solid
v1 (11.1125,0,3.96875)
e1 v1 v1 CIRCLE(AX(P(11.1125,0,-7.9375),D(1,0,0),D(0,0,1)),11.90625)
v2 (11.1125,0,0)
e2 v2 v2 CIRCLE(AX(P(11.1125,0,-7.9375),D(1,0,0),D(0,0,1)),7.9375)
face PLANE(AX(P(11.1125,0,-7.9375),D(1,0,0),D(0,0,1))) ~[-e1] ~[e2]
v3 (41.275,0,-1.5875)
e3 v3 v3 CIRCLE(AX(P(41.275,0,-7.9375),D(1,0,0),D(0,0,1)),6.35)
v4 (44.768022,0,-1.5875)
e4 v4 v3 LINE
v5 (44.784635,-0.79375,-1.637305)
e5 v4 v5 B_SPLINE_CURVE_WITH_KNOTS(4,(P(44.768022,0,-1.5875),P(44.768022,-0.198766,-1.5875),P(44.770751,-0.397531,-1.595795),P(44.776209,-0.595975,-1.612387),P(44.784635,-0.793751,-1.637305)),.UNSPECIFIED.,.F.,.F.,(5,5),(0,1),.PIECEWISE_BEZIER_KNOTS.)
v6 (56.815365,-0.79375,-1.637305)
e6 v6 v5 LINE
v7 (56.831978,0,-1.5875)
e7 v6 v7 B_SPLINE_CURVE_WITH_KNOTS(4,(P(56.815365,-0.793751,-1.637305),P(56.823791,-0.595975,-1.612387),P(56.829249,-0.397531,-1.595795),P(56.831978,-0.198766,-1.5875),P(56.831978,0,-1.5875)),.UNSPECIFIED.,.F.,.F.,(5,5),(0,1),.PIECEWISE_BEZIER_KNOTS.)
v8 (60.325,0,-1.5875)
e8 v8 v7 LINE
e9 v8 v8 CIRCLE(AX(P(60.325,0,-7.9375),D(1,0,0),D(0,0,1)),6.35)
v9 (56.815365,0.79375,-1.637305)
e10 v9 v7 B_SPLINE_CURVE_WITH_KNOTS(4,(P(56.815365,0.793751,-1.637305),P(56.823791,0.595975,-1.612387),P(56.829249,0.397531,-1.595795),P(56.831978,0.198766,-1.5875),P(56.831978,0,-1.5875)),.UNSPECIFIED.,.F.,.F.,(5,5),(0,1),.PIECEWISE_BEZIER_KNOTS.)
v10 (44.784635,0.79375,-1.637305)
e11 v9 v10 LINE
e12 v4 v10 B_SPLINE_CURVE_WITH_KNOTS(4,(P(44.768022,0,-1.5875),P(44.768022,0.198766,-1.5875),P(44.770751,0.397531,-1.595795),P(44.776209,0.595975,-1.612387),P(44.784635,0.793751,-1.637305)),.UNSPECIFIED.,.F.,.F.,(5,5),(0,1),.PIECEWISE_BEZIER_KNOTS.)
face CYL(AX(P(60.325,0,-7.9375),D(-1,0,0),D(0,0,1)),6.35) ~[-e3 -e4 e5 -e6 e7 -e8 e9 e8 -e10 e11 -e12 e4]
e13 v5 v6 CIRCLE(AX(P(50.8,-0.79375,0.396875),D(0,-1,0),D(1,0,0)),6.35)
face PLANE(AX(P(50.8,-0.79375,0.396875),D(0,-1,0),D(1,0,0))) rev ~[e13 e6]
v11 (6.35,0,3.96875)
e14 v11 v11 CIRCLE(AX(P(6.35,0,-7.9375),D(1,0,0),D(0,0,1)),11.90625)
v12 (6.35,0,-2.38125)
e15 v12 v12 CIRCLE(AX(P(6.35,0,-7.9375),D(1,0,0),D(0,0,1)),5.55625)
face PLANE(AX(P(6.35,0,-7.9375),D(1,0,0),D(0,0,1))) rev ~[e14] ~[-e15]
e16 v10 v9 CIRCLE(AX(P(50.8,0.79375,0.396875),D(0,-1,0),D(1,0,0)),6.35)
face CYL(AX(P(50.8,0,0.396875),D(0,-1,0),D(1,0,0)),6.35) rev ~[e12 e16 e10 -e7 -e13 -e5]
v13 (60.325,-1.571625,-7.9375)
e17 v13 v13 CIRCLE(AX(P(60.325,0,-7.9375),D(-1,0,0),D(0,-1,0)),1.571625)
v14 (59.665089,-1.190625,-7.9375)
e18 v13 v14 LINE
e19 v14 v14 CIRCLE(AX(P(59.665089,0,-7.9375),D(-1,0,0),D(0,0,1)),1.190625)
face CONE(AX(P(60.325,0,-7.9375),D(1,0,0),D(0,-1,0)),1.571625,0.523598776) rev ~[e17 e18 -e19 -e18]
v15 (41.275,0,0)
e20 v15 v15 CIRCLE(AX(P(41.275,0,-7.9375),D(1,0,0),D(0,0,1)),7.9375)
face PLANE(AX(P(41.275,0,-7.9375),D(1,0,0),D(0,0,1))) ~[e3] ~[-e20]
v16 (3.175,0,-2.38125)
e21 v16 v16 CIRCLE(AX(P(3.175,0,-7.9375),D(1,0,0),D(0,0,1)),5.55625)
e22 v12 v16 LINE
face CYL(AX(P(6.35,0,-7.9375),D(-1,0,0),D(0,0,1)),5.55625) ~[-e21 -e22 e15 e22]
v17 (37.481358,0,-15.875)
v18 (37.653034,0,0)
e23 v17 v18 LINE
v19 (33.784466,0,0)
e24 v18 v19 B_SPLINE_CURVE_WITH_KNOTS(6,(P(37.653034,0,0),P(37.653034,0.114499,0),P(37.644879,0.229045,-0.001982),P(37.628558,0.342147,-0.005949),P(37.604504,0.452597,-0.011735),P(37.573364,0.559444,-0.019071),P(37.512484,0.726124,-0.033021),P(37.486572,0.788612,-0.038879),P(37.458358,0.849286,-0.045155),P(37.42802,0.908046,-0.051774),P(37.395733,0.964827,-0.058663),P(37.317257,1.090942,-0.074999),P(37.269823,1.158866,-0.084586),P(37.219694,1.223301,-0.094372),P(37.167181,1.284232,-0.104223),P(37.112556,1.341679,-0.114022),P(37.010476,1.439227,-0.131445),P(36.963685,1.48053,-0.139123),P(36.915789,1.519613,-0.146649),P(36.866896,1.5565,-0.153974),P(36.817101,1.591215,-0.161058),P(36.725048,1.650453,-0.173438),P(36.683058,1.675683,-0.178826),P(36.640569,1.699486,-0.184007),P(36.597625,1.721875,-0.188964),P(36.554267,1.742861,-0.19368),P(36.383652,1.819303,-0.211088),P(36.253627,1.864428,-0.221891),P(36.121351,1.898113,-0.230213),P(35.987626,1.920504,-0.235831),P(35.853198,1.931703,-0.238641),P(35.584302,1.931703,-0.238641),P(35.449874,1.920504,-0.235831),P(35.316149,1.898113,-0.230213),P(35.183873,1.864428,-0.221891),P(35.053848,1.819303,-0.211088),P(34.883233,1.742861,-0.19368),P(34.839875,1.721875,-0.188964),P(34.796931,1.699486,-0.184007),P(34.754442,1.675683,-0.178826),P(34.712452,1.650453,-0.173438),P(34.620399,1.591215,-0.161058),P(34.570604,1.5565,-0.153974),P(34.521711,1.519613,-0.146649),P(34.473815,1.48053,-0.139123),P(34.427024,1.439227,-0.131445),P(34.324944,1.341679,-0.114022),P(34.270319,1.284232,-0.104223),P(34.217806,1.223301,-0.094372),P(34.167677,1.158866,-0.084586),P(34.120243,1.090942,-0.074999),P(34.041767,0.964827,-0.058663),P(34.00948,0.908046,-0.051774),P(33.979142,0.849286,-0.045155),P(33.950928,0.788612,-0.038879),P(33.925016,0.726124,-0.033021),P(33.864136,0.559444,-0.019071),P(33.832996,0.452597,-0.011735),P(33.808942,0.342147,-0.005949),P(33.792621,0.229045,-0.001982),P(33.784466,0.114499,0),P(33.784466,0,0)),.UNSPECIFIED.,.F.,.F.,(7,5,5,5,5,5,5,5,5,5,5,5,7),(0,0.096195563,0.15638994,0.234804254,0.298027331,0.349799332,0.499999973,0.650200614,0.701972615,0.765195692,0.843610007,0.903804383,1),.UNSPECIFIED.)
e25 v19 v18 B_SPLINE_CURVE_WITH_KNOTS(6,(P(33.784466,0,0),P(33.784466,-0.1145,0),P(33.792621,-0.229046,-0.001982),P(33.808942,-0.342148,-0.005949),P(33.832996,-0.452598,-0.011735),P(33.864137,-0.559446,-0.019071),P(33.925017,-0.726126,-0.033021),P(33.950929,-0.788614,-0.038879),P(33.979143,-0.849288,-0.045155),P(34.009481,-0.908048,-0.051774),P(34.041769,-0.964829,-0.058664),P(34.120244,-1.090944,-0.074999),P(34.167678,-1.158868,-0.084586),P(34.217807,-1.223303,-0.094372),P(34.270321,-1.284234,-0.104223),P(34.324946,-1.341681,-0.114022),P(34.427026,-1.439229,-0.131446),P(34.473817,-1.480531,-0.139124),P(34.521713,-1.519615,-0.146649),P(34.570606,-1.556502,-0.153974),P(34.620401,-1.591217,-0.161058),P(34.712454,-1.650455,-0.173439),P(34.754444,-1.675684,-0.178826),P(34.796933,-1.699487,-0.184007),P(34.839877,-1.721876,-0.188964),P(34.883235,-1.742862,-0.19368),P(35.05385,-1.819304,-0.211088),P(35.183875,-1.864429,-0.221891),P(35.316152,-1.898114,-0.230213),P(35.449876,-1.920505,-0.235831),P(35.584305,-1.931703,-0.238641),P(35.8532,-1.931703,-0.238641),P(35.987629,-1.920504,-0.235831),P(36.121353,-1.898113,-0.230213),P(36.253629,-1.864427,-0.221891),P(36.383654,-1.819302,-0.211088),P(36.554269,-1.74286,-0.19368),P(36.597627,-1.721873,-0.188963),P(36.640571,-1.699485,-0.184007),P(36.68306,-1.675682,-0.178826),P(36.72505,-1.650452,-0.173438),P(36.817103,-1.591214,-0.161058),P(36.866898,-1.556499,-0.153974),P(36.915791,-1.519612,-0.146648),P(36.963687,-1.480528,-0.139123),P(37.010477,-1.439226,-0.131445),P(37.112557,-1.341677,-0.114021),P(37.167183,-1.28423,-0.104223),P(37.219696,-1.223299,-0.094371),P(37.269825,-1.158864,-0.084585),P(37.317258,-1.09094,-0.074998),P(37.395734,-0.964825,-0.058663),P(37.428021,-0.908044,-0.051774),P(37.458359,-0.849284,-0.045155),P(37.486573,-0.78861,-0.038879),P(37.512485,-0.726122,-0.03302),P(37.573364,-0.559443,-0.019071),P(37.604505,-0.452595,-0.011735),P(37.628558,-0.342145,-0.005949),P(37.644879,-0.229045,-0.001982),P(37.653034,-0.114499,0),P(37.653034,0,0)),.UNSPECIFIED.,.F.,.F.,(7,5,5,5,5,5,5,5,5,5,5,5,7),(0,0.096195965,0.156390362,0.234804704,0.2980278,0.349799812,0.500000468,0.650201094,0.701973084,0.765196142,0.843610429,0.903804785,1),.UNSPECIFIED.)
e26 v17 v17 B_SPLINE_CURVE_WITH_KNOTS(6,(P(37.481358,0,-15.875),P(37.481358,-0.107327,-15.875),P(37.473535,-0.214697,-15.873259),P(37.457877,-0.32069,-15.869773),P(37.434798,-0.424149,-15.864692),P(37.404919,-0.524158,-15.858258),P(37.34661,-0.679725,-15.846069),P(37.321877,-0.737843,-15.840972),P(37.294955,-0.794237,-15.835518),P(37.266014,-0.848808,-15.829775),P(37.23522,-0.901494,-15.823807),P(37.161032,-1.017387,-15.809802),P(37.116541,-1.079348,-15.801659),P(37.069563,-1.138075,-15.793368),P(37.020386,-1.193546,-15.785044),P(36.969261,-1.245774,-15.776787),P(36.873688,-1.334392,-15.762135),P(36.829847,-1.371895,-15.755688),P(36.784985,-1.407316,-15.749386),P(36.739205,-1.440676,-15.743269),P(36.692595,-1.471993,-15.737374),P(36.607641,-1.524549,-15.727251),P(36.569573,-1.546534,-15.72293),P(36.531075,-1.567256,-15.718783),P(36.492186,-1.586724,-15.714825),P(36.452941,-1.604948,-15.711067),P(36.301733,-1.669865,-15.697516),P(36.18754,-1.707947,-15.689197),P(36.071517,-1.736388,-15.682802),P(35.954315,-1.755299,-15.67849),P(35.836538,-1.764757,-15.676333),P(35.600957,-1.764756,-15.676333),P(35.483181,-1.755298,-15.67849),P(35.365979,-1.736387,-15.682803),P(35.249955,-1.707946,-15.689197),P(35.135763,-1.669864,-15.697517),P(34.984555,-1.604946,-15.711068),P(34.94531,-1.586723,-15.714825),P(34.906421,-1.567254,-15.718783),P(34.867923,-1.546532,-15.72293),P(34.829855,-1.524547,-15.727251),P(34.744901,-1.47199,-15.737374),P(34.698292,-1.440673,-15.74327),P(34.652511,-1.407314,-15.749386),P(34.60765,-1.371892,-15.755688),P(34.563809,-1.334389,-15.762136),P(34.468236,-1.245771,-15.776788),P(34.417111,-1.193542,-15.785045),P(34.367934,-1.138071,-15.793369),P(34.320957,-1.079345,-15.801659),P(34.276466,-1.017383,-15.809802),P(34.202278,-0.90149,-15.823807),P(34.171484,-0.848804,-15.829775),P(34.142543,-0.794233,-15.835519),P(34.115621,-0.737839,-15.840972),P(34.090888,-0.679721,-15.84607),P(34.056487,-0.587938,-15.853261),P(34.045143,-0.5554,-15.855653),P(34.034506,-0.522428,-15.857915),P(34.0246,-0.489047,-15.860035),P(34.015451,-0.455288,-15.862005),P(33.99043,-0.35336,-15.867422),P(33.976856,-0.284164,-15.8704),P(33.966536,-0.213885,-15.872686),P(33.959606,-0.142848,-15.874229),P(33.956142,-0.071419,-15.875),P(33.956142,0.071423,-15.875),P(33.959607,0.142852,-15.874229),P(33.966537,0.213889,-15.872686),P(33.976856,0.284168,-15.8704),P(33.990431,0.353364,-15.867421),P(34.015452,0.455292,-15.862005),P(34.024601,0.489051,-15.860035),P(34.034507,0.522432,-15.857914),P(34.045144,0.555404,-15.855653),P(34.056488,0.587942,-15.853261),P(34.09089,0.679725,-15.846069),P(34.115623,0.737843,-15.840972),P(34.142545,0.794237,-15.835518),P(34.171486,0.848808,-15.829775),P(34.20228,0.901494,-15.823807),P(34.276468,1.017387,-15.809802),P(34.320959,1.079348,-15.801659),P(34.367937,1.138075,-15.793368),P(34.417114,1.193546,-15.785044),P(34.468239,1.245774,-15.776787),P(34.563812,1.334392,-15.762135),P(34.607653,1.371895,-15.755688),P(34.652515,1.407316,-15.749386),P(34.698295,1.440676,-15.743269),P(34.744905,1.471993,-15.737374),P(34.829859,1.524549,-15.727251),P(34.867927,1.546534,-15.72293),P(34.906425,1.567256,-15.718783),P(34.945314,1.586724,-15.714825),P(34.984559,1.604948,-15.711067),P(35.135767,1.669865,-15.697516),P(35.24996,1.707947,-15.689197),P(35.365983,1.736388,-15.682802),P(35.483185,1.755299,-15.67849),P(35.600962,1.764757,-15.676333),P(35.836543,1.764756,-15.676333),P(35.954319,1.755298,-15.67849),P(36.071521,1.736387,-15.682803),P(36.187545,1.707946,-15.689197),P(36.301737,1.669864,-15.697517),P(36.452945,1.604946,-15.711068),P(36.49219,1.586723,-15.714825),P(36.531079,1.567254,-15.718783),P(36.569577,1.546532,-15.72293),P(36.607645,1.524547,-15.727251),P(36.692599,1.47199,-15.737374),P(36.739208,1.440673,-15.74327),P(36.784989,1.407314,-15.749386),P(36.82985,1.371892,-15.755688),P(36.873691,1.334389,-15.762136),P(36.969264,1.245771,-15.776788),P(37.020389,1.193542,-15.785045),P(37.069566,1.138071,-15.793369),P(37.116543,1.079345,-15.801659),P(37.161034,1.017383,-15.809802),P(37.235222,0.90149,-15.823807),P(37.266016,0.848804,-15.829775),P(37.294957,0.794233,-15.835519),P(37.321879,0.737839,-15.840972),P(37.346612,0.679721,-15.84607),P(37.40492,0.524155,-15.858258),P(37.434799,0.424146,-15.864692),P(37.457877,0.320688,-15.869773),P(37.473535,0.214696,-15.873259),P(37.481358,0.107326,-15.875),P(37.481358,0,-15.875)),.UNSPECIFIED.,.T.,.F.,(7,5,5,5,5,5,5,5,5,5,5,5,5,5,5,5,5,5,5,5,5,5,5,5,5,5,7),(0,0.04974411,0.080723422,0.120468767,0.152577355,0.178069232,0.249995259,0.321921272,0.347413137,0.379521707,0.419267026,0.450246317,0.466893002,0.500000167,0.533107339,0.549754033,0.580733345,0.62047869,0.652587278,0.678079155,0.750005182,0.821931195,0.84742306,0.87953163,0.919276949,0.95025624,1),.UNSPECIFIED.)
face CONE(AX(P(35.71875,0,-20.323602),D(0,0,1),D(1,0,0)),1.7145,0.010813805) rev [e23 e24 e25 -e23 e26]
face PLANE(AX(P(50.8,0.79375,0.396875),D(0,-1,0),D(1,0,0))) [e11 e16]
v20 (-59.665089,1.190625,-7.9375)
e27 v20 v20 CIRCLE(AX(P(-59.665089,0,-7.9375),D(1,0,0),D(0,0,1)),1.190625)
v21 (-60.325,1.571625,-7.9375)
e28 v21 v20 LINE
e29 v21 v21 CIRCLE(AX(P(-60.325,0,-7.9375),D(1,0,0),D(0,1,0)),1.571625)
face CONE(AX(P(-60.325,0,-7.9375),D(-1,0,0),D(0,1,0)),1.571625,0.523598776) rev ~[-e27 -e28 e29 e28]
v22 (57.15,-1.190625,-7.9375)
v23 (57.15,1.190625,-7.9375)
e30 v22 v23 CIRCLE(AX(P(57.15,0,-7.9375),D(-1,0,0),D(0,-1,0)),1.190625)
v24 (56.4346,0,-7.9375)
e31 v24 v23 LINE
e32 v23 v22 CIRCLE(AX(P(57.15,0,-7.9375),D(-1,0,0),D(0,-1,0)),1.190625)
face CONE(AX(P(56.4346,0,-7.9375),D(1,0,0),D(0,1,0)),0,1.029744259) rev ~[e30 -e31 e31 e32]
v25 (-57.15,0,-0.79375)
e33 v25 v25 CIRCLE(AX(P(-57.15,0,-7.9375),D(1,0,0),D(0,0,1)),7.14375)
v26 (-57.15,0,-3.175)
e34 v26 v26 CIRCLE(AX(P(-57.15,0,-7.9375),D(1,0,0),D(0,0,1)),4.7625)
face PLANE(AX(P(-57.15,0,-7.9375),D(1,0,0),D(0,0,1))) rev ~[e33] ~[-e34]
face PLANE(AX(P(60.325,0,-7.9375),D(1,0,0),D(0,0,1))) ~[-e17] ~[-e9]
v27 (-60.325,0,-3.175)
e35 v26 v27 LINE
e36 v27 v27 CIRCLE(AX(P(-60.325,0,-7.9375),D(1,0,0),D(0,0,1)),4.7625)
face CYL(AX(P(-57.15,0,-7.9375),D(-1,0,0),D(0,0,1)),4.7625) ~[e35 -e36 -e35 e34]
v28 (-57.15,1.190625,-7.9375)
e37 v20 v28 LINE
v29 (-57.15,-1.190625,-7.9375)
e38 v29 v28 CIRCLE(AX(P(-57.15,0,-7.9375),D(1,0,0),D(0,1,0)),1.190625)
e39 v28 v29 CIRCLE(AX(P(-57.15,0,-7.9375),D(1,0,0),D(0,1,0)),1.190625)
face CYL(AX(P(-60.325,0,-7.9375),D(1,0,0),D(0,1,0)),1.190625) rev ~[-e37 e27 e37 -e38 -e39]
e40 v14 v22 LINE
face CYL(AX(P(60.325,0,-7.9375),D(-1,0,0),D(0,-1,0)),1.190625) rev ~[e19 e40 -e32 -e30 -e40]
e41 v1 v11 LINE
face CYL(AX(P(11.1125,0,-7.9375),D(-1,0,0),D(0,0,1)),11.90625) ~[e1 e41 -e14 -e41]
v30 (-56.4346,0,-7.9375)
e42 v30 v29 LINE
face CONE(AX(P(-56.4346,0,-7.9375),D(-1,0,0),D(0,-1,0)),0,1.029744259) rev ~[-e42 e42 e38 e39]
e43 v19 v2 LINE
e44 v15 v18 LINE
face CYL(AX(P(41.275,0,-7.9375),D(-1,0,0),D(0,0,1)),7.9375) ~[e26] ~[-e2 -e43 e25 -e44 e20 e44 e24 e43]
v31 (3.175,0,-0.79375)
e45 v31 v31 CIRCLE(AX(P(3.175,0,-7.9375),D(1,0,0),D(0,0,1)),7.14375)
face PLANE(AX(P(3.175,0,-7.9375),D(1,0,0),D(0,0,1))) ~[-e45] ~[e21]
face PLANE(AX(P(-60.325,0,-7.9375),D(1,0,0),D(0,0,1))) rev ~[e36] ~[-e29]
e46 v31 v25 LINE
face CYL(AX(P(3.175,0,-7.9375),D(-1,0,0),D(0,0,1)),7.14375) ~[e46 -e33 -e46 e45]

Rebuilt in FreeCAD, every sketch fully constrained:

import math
import FreeCAD as App
import Part
import Sketcher

V = App.Vector
Q = App.Units.Quantity

doc = App.newDocument("Part")
body = doc.addObject("PartDesign::Body", "Body")

sketch1 = body.newObject("Sketcher::SketchObject", "Sketch")
sketch1.AttachmentSupport = (doc.getObject("XZ_Plane"), [""])
sketch1.MapMode = "FlatFace"
sketch1.addGeometry([
    Part.LineSegment(V(-60.325, -3.175, 0), V(-60.325, -7.9375, 0)),
    Part.LineSegment(V(-60.325, -7.9375, 0), V(60.325, -7.9375, 0)),
    Part.LineSegment(V(60.325, -7.9375, 0), V(60.325, -1.5875, 0)),
    Part.LineSegment(V(60.325, -1.5875, 0), V(41.275, -1.5875, 0)),
    Part.LineSegment(V(41.275, -1.5875, 0), V(41.275, 0, 0)),
    Part.LineSegment(V(41.275, 0, 0), V(11.1125, 0, 0)),
    Part.LineSegment(V(11.1125, 0, 0), V(11.1125, 3.96875, 0)),
    Part.LineSegment(V(11.1125, 3.96875, 0), V(6.35, 3.96875, 0)),
    Part.LineSegment(V(6.35, 3.96875, 0), V(6.35, -2.38125, 0)),
    Part.LineSegment(V(6.35, -2.38125, 0), V(3.175, -2.38125, 0)),
    Part.LineSegment(V(3.175, -2.38125, 0), V(3.175, -0.79375, 0)),
    Part.LineSegment(V(3.175, -0.79375, 0), V(-57.15, -0.79375, 0)),
    Part.LineSegment(V(-57.15, -0.79375, 0), V(-57.15, -3.175, 0)),
    Part.LineSegment(V(-57.15, -3.175, 0), V(-60.325, -3.175, 0)),
], False)
sketch1.addGeometry(Part.LineSegment(V(-60.325, -7.9375, 0), V(60.325, -7.9375, 0)), True)
sketch1.addConstraint([
    Sketcher.Constraint("Coincident", 0, 2, 1, 1),
    Sketcher.Constraint("Coincident", 1, 2, 2, 1),
    Sketcher.Constraint("Coincident", 2, 2, 3, 1),
    Sketcher.Constraint("Coincident", 3, 2, 4, 1),
    Sketcher.Constraint("Coincident", 4, 2, 5, 1),
    Sketcher.Constraint("Coincident", 5, 2, 6, 1),
    Sketcher.Constraint("Coincident", 6, 2, 7, 1),
    Sketcher.Constraint("Coincident", 7, 2, 8, 1),
    Sketcher.Constraint("Coincident", 8, 2, 9, 1),
    Sketcher.Constraint("Coincident", 9, 2, 10, 1),
    Sketcher.Constraint("Coincident", 10, 2, 11, 1),
    Sketcher.Constraint("Coincident", 11, 2, 12, 1),
    Sketcher.Constraint("Coincident", 12, 2, 13, 1),
    Sketcher.Constraint("Coincident", 13, 2, 0, 1),
    Sketcher.Constraint("Vertical", 0),
    Sketcher.Constraint("Horizontal", 1),
    Sketcher.Constraint("Vertical", 2),
    Sketcher.Constraint("Horizontal", 3),
    Sketcher.Constraint("Vertical", 4),
    Sketcher.Constraint("Horizontal", 5),
    Sketcher.Constraint("Vertical", 6),
    Sketcher.Constraint("Horizontal", 7),
    Sketcher.Constraint("Vertical", 8),
    Sketcher.Constraint("Horizontal", 9),
    Sketcher.Constraint("Vertical", 10),
    Sketcher.Constraint("Horizontal", 11),
    Sketcher.Constraint("Vertical", 12),
    Sketcher.Constraint("Horizontal", 13),
    Sketcher.Constraint("Horizontal", 14),
    Sketcher.Constraint("Coincident", 14, 1, 0, 2),
    Sketcher.Constraint("PointOnObject", 4, 2, -1),
    Sketcher.Constraint("Vertical", 2, 2, 14, 2),
    Sketcher.Constraint("Equal", 9, 13),
    Sketcher.Constraint("Equal", 7, 0),
    Sketcher.Constraint("Equal", 2, 8),
    Sketcher.Constraint("Equal", 4, 10),
    Sketcher.Constraint("DistanceX", 0, 2, 3, 2, Q("4 in")),
    Sketcher.Constraint("DistanceX", 1, 1, 1, 2, Q("4.75 in")),
    Sketcher.Constraint("DistanceY", 2, 1, 2, 2, Q("0.25 in")),
    Sketcher.Constraint("DistanceX", 9, 2, 3, 2, Q("1.5 in")),
    Sketcher.Constraint("DistanceX", 5, 2, 5, 1, Q("1.1875 in")),
    Sketcher.Constraint("DistanceX", 7, 2, 7, 1, Q("0.1875 in")),
    Sketcher.Constraint("DistanceY", 4, 1, 4, 2, Q("0.0625 in")),
    Sketcher.Constraint("DistanceY", 6, 1, 6, 2, Q("0.15625 in")),
    Sketcher.Constraint("DistanceX", -1, 1, 7, 2, Q("0.25 in")),
])
revolution = body.newObject("PartDesign::Revolution", "Revolution")
revolution.Profile = sketch1
revolution.ReferenceAxis = (sketch1, ["Axis0"])
revolution.Angle = 360

sketch2 = body.newObject("Sketcher::SketchObject", "Sketch001")
sketch2.AttachmentSupport = (doc.getObject("XZ_Plane"), [""])
sketch2.MapMode = "FlatFace"
sketch2.addGeometry(Part.Circle(V(50.8, 0.396875, 0), V(0, 0, 1), 6.35), False)
sketch2.addConstraint([
    Sketcher.Constraint("Diameter", 0, Q("0.5 in")),
    Sketcher.Constraint("DistanceX", -1, 1, 0, 3, Q("2 in")),
    Sketcher.Constraint("DistanceY", -1, 1, 0, 3, Q("0.015625 in")),
])
pocket1 = body.newObject("PartDesign::Pocket", "Pocket")
pocket1.Profile = sketch2
pocket1.Length = Q("0.0625 in")
pocket1.Midplane = True

sketch3 = body.newObject("Sketcher::SketchObject", "Sketch002")
sketch3.AttachmentSupport = (doc.getObject("XZ_Plane"), [""])
sketch3.MapMode = "FlatFace"
sketch3.addGeometry([
    Part.LineSegment(V(37.43325, -20.323602, 0), V(37.69995, 4.338356, 0)),
    Part.ArcOfCircle(Part.Circle(V(35.71875, -0.076719, 0), V(0, 0, 1), 4.839219), math.radians(65.832542), math.radians(90)),
    Part.LineSegment(V(35.71875, 4.7625, 0), V(35.71875, -20.6375, 0)),
    Part.ArcOfCircle(Part.Circle(V(35.71875, -15.798281, 0), V(0, 0, 1), 4.839219), math.radians(-90), math.radians(-69.249897)),
], False)
sketch3.addGeometry(Part.LineSegment(V(35.71875, 4.7625, 0), V(35.71875, -20.6375, 0)), True)
sketch3.addConstraint([
    Sketcher.Constraint("Coincident", 0, 2, 1, 1),
    Sketcher.Constraint("Coincident", 1, 2, 2, 1),
    Sketcher.Constraint("Coincident", 2, 2, 3, 1),
    Sketcher.Constraint("Coincident", 3, 2, 0, 1),
    Sketcher.Constraint("Vertical", 2),
    Sketcher.Constraint("Vertical", 4),
    Sketcher.Constraint("Coincident", 4, 1, 1, 2),
    Sketcher.Constraint("Equal", 1, 3),
    Sketcher.Constraint("Vertical", 1, 3, 3, 3),
    Sketcher.Constraint("Vertical", 3, 3, 1, 2),
    Sketcher.Constraint("Equal", 2, 4),
    Sketcher.Constraint("DistanceY", 2, 2, 2, 1, Q("1 in")),
    Sketcher.Constraint("Distance", 0, Q("0.971 in")),
    Sketcher.Constraint("DistanceX", -1, 1, 1, 3, Q("1.40625 in")),
    Sketcher.Constraint("DistanceY", -1, 1, 1, 2, Q("0.1875 in")),
    Sketcher.Constraint("Radius", 1, 4.839219),
    Sketcher.Constraint("DistanceX", 1, 3, 0, 2, Q("0.078 in")),
])
groove = body.newObject("PartDesign::Groove", "Groove")
groove.Profile = sketch3
groove.ReferenceAxis = (sketch3, ["Axis0"])
groove.Angle = 360

sketch4 = body.newObject("Sketcher::SketchObject", "Sketch003")
sketch4.AttachmentSupport = (doc.getObject("YZ_Plane"), [""])
sketch4.MapMode = "FlatFace"
sketch4.AttachmentOffset = App.Placement(V(0, 0, 2.375 * 25.4), App.Rotation())
sketch4.addGeometry(Part.Circle(V(0, -7.9375, 0), V(0, 0, 1), 1.190625), False)
sketch4.addConstraint([
    Sketcher.Constraint("PointOnObject", 0, 3, -2),
    Sketcher.Constraint("Diameter", 0, Q("0.09375 in")),
    Sketcher.Constraint("DistanceY", 0, 3, -1, 1, Q("0.3125 in")),
])
doc.recompute()
hole = body.newObject("PartDesign::Hole", "Hole")
hole.Profile = sketch4
hole.ThreadType = "None"
hole.Diameter = Q("0.09375 in")
hole.DepthType = "Dimension"
hole.Depth = Q("0.125 in")
hole.DrillPoint = "Angled"
hole.DrillPointAngle = 118
hole.HoleCutType = "Countersink"
hole.HoleCutDiameter = 3.14325
hole.HoleCutCountersinkAngle = 60

sketch5 = body.newObject("Sketcher::SketchObject", "Sketch004")
sketch5.AttachmentSupport = (doc.getObject("YZ_Plane"), [""])
sketch5.MapMode = "FlatFace"
sketch5.AttachmentOffset = App.Placement(V(0, 0, -2.375 * 25.4), App.Rotation())
sketch5.addGeometry(Part.Circle(V(0, -7.9375, 0), V(0, 0, 1), 1.190625), False)
sketch5.addConstraint([
    Sketcher.Constraint("PointOnObject", 0, 3, -2),
    Sketcher.Constraint("Diameter", 0, Q("0.09375 in")),
    Sketcher.Constraint("DistanceY", 0, 3, -1, 1, Q("0.3125 in")),
])
doc.recompute()
hole2 = body.newObject("PartDesign::Hole", "Hole001")
hole2.Profile = sketch5
hole2.ThreadType = "None"
hole2.Diameter = Q("0.09375 in")
hole2.DepthType = "Dimension"
hole2.Depth = Q("0.125 in")
hole2.DrillPoint = "Angled"
hole2.DrillPointAngle = 118
hole2.HoleCutType = "Countersink"
hole2.HoleCutDiameter = 3.14325
hole2.HoleCutCountersinkAngle = 60
hole2.Reversed = True

doc.recompute()
